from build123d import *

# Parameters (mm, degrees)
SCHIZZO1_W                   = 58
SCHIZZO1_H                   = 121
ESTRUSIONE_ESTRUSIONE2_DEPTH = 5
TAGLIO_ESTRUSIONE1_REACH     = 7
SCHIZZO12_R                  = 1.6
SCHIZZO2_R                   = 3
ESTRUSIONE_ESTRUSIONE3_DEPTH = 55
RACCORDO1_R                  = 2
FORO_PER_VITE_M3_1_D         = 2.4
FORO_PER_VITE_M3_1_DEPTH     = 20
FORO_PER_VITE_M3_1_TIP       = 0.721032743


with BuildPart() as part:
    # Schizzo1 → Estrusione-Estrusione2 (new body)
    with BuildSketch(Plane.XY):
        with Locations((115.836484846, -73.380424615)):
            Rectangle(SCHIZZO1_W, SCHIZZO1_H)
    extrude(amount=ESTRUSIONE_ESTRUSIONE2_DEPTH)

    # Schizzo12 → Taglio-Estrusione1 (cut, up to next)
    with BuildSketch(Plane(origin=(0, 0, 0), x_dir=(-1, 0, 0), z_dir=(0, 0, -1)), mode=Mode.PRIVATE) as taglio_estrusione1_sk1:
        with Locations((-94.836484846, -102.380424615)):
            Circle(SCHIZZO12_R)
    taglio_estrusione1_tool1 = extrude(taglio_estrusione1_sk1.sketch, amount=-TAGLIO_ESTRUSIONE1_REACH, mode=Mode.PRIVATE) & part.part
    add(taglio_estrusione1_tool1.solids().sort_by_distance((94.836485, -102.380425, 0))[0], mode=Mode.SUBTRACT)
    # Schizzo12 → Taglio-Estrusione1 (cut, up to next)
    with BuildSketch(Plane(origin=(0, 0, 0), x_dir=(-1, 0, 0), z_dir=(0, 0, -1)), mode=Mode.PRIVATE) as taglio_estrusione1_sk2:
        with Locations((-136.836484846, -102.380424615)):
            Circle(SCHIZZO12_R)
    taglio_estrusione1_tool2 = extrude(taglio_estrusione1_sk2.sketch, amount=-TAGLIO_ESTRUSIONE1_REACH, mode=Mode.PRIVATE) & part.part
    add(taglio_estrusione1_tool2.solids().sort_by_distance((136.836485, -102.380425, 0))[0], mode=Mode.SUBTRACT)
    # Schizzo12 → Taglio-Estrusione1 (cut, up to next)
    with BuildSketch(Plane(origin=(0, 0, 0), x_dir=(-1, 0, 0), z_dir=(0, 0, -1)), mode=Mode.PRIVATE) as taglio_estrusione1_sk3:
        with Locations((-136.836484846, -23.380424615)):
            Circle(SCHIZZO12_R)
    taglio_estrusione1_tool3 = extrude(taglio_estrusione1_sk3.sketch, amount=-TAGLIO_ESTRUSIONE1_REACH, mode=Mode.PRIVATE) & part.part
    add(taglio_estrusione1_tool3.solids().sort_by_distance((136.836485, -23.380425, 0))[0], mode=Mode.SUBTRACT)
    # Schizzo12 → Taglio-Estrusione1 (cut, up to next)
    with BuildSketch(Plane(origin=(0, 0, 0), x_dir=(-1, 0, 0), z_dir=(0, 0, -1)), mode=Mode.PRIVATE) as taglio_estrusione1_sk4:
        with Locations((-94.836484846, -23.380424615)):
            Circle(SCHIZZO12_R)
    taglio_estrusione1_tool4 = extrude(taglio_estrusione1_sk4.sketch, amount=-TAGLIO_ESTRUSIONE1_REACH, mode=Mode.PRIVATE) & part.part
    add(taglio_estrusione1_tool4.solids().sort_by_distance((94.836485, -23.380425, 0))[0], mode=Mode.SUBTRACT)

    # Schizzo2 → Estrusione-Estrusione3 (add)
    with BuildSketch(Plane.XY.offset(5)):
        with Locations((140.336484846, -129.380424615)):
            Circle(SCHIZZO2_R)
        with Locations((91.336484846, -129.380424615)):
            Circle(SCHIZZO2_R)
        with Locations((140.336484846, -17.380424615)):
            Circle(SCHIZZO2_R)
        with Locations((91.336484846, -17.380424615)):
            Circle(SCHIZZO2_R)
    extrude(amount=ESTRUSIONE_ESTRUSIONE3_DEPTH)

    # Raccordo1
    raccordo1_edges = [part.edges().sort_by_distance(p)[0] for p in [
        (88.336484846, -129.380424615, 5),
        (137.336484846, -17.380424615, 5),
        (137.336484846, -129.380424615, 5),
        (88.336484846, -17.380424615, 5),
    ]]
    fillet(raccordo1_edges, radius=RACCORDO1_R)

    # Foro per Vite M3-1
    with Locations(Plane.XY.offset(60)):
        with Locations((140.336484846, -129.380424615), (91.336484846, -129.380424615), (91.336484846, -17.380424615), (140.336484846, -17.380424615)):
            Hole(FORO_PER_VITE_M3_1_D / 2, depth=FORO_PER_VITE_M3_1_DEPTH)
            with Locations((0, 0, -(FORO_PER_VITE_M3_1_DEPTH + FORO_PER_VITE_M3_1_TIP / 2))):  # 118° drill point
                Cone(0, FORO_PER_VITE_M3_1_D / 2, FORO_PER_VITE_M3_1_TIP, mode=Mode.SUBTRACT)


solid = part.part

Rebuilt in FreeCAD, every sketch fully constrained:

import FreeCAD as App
import Part
import Sketcher

V = App.Vector
Q = App.Units.Quantity


def edges_at(feature, points):
    """Names of the edges that pass closest to the given points."""
    edges = feature.Shape.Edges
    near = lambda p: min(range(len(edges)), key=lambda i: edges[i].distToShape(Part.Vertex(*p))[0])
    return sorted({f"Edge{near(p) + 1}" for p in points})

doc = App.newDocument("Part")
body = doc.addObject("PartDesign::Body", "Body")

sketch1 = doc.addObject("Sketcher::SketchObject", "Sketch")
body.addObject(sketch1)
sketch1.AttachmentSupport = (doc.XY_Plane, [""])
sketch1.MapMode = "FlatFace"
sketch1.addGeometry([
    Part.LineSegment(V(87, -13, 0), V(87, -134, 0)),
    Part.LineSegment(V(87, -134, 0), V(145, -134, 0)),
    Part.LineSegment(V(145, -134, 0), V(145, -13, 0)),
    Part.LineSegment(V(145, -13, 0), V(87, -13, 0)),
], False)
sketch1.addConstraint([
    Sketcher.Constraint("Coincident", 0, 2, 1, 1),
    Sketcher.Constraint("Coincident", 1, 2, 2, 1),
    Sketcher.Constraint("Coincident", 2, 2, 3, 1),
    Sketcher.Constraint("Coincident", 3, 2, 0, 1),
    Sketcher.Constraint("Vertical", 0),
    Sketcher.Constraint("Horizontal", 1),
    Sketcher.Constraint("Vertical", 2),
    Sketcher.Constraint("Horizontal", 3),
    Sketcher.Constraint("DistanceX", 1, 1, 1, 2, Q("58 mm")),
    Sketcher.Constraint("DistanceY", 0, 2, 0, 1, Q("121 mm")),
    Sketcher.Constraint("DistanceX", -1, 1, 0, 2, Q("86.836485 mm")),
    Sketcher.Constraint("DistanceY", 0, 2, -1, 1, Q("133.880425 mm")),
])
pad1 = doc.addObject("PartDesign::Pad", "Pad")
body.addObject(pad1)
pad1.Profile = sketch1
pad1.Length = 5

sketch2 = doc.addObject("Sketcher::SketchObject", "Sketch001")
body.addObject(sketch2)
sketch2.AttachmentSupport = (doc.XY_Plane, [""])
sketch2.MapMode = "FlatFace"
sketch2.addGeometry(Part.Circle(V(94.8, -102.4, 0), V(0, 0, 1), 1.6), False)
sketch2.addConstraint([
    Sketcher.Constraint("Diameter", 0, Q("3.2 mm")),
    Sketcher.Constraint("DistanceX", -1, 1, 0, 3, Q("94.836485 mm")),
    Sketcher.Constraint("DistanceY", 0, 3, -1, 1, Q("102.380425 mm")),
])
pocket1 = doc.addObject("PartDesign::Pocket", "Pocket")
body.addObject(pocket1)
pocket1.Profile = sketch2
pocket1.Type = "UpToFirst"
pocket1.Reversed = True

sketch3 = doc.addObject("Sketcher::SketchObject", "Sketch002")
body.addObject(sketch3)
sketch3.AttachmentSupport = (doc.XY_Plane, [""])
sketch3.MapMode = "FlatFace"
sketch3.addGeometry(Part.Circle(V(136.8, -102.4, 0), V(0, 0, 1), 1.6), False)
sketch3.addConstraint([
    Sketcher.Constraint("Diameter", 0, Q("3.2 mm")),
    Sketcher.Constraint("DistanceX", -1, 1, 0, 3, Q("136.836485 mm")),
    Sketcher.Constraint("DistanceY", 0, 3, -1, 1, Q("102.380425 mm")),
])
pocket2 = doc.addObject("PartDesign::Pocket", "Pocket001")
body.addObject(pocket2)
pocket2.Profile = sketch3
pocket2.Type = "UpToFirst"
pocket2.Reversed = True

sketch4 = doc.addObject("Sketcher::SketchObject", "Sketch003")
body.addObject(sketch4)
sketch4.AttachmentSupport = (doc.XY_Plane, [""])
sketch4.MapMode = "FlatFace"
sketch4.addGeometry(Part.Circle(V(136.8, -23.4, 0), V(0, 0, 1), 1.6), False)
sketch4.addConstraint([
    Sketcher.Constraint("Diameter", 0, Q("3.2 mm")),
    Sketcher.Constraint("DistanceX", -1, 1, 0, 3, Q("136.836485 mm")),
    Sketcher.Constraint("DistanceY", 0, 3, -1, 1, Q("23.380425 mm")),
])
pocket3 = doc.addObject("PartDesign::Pocket", "Pocket002")
body.addObject(pocket3)
pocket3.Profile = sketch4
pocket3.Type = "UpToFirst"
pocket3.Reversed = True

sketch5 = doc.addObject("Sketcher::SketchObject", "Sketch004")
body.addObject(sketch5)
sketch5.AttachmentSupport = (doc.XY_Plane, [""])
sketch5.MapMode = "FlatFace"
sketch5.addGeometry(Part.Circle(V(94.8, -23.4, 0), V(0, 0, 1), 1.6), False)
sketch5.addConstraint([
    Sketcher.Constraint("Diameter", 0, Q("3.2 mm")),
    Sketcher.Constraint("DistanceX", -1, 1, 0, 3, Q("94.836485 mm")),
    Sketcher.Constraint("DistanceY", 0, 3, -1, 1, Q("23.380425 mm")),
])
pocket4 = doc.addObject("PartDesign::Pocket", "Pocket003")
body.addObject(pocket4)
pocket4.Profile = sketch5
pocket4.Type = "UpToFirst"
pocket4.Reversed = True

sketch6 = doc.addObject("Sketcher::SketchObject", "Sketch005")
body.addObject(sketch6)
sketch6.AttachmentSupport = (doc.XY_Plane, [""])
sketch6.MapMode = "FlatFace"
sketch6.AttachmentOffset = App.Placement(V(0, 0, 5), App.Rotation())
sketch6.addGeometry([
    Part.Circle(V(140.3, -129.4, 0), V(0, 0, 1), 3),
    Part.Circle(V(91.3, -129.4, 0), V(0, 0, 1), 3),
    Part.Circle(V(140.3, -17.4, 0), V(0, 0, 1), 3),
    Part.Circle(V(91.3, -17.4, 0), V(0, 0, 1), 3),
], False)
sketch6.addConstraint([
    Sketcher.Constraint("Equal", 0, 1),
    Sketcher.Constraint("Equal", 1, 2),
    Sketcher.Constraint("Equal", 2, 3),
    Sketcher.Constraint("Horizontal", 0, 3, 1, 3),
    Sketcher.Constraint("Horizontal", 2, 3, 3, 3),
    Sketcher.Constraint("Vertical", 0, 3, 2, 3),
    Sketcher.Constraint("Vertical", 1, 3, 3, 3),
    Sketcher.Constraint("Diameter", 0, Q("6 mm")),
    Sketcher.Constraint("DistanceX", 1, 3, 0, 3, Q("49 mm")),
    Sketcher.Constraint("DistanceY", 0, 3, 2, 3, Q("112 mm")),
    Sketcher.Constraint("DistanceX", -1, 1, 0, 3, Q("140.336485 mm")),
    Sketcher.Constraint("DistanceY", 0, 3, -1, 1, Q("129.380425 mm")),
])
pad2 = doc.addObject("PartDesign::Pad", "Pad001")
body.addObject(pad2)
pad2.Profile = sketch6
pad2.Length = 55
doc.recompute()

fillet = doc.addObject("PartDesign::Fillet", "Fillet")
body.addObject(fillet)
fillet.Base = (pad2, edges_at(pad2, [
    (88.336, -129.38, 5),
    (137.336, -17.38, 5),
    (137.336, -129.38, 5),
    (88.336, -17.38, 5),
]))
fillet.Radius = 2

sketch7 = doc.addObject("Sketcher::SketchObject", "Sketch006")
body.addObject(sketch7)
sketch7.AttachmentSupport = (doc.XY_Plane, [""])
sketch7.MapMode = "FlatFace"
sketch7.AttachmentOffset = App.Placement(V(0, 0, 60), App.Rotation())
sketch7.addGeometry([
    Part.Circle(V(140.3, -129.4, 0), V(0, 0, 1), 1.2),
    Part.Circle(V(91.3, -129.4, 0), V(0, 0, 1), 1.2),
    Part.Circle(V(91.3, -17.4, 0), V(0, 0, 1), 1.2),
    Part.Circle(V(140.3, -17.4, 0), V(0, 0, 1), 1.2),
], False)
sketch7.addConstraint([
    Sketcher.Constraint("Equal", 0, 1),
    Sketcher.Constraint("Equal", 1, 2),
    Sketcher.Constraint("Equal", 2, 3),
    Sketcher.Constraint("Horizontal", 0, 3, 1, 3),
    Sketcher.Constraint("Horizontal", 2, 3, 3, 3),
    Sketcher.Constraint("Vertical", 1, 3, 2, 3),
    Sketcher.Constraint("Vertical", 0, 3, 3, 3),
    Sketcher.Constraint("Diameter", 0, Q("2.4 mm")),
    Sketcher.Constraint("DistanceX", 1, 3, 0, 3, Q("49 mm")),
    Sketcher.Constraint("DistanceY", 1, 3, 2, 3, Q("112 mm")),
    Sketcher.Constraint("DistanceX", -1, 1, 0, 3, Q("140.336485 mm")),
    Sketcher.Constraint("DistanceY", 0, 3, -1, 1, Q("129.380425 mm")),
])
doc.recompute()
hole = doc.addObject("PartDesign::Hole", "Hole")
body.addObject(hole)
hole.Profile = sketch7
hole.ThreadType = "None"
hole.Diameter = 2.4
hole.DepthType = "Dimension"
hole.Depth = 20
hole.DrillPoint = "Angled"
hole.DrillPointAngle = 118

doc.recompute()
